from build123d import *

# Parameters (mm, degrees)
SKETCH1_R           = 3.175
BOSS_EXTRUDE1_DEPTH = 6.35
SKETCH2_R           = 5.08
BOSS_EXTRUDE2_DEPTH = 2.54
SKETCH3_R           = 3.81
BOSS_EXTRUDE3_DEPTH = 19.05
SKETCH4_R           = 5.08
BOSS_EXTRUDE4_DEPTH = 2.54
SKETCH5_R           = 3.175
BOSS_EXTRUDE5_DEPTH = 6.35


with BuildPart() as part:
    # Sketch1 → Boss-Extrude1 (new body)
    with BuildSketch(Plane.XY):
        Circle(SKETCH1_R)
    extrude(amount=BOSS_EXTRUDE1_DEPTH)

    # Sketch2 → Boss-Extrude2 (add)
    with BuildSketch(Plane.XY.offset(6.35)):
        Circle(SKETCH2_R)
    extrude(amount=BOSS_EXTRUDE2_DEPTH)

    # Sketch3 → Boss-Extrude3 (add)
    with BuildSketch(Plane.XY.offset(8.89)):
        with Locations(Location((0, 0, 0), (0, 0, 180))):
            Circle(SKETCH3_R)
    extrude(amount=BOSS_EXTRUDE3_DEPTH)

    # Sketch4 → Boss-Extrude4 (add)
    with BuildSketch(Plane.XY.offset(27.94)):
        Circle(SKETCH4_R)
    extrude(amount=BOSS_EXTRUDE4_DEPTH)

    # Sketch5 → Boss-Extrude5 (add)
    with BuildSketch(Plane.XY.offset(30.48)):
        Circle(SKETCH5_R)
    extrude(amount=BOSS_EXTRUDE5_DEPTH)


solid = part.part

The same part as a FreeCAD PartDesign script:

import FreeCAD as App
import Part
import Sketcher
from FreeCAD import Vector
Q = App.Units.Quantity

doc = App.newDocument("Part")
body = doc.addObject("PartDesign::Body", "Body")

sketch1 = body.newObject("Sketcher::SketchObject", "Sketch")
sketch1.AttachmentSupport = (doc.getObject("XY_Plane"), [""])
sketch1.MapMode = "FlatFace"
sketch1.addGeometry(Part.Circle(Vector(0, 0, 0), Vector(0, 0, 1), 3.2), False)
sketch1.addConstraint([
    Sketcher.Constraint("Coincident", 0, 3, -1, 1),
    Sketcher.Constraint("Diameter", 0, Q("0.25 in")),
])
pad1 = body.newObject("PartDesign::Pad", "Pad")
pad1.Profile = sketch1
pad1.Length = Q("0.25 in")

sketch2 = body.newObject("Sketcher::SketchObject", "Sketch001")
sketch2.AttachmentSupport = (doc.getObject("XY_Plane"), [""])
sketch2.MapMode = "FlatFace"
sketch2.AttachmentOffset = App.Placement(Vector(0, 0, 0.25 * 25.4), App.Rotation())
sketch2.addGeometry(Part.Circle(Vector(0, 0, 0), Vector(0, 0, 1), 5), False)
sketch2.addConstraint([
    Sketcher.Constraint("Coincident", 0, 3, -1, 1),
    Sketcher.Constraint("Diameter", 0, Q("0.4 in")),
])
pad2 = body.newObject("PartDesign::Pad", "Pad001")
pad2.Profile = sketch2
pad2.Length = Q("0.1 in")

sketch3 = body.newObject("Sketcher::SketchObject", "Sketch002")
sketch3.AttachmentSupport = (doc.getObject("XY_Plane"), [""])
sketch3.MapMode = "FlatFace"
sketch3.AttachmentOffset = App.Placement(Vector(0, 0, 0.35 * 25.4), App.Rotation())
sketch3.addGeometry(Part.Circle(Vector(0, 0, 0), Vector(0, 0, 1), 3.8), False)
sketch3.addConstraint([
    Sketcher.Constraint("Coincident", 0, 3, -1, 1),
    Sketcher.Constraint("Diameter", 0, Q("0.3 in")),
])
pad3 = body.newObject("PartDesign::Pad", "Pad002")
pad3.Profile = sketch3
pad3.Length = Q("0.75 in")

sketch4 = body.newObject("Sketcher::SketchObject", "Sketch003")
sketch4.AttachmentSupport = (doc.getObject("XY_Plane"), [""])
sketch4.MapMode = "FlatFace"
sketch4.AttachmentOffset = App.Placement(Vector(0, 0, 1.1 * 25.4), App.Rotation())
sketch4.addGeometry(Part.Circle(Vector(0, 0, 0), Vector(0, 0, 1), 5), False)
sketch4.addConstraint([
    Sketcher.Constraint("Coincident", 0, 3, -1, 1),
    Sketcher.Constraint("Diameter", 0, Q("0.4 in")),
])
pad4 = body.newObject("PartDesign::Pad", "Pad003")
pad4.Profile = sketch4
pad4.Length = Q("0.1 in")

sketch5 = body.newObject("Sketcher::SketchObject", "Sketch004")
sketch5.AttachmentSupport = (doc.getObject("XY_Plane"), [""])
sketch5.MapMode = "FlatFace"
sketch5.AttachmentOffset = App.Placement(Vector(0, 0, 1.2 * 25.4), App.Rotation())
sketch5.addGeometry(Part.Circle(Vector(0, 0, 0), Vector(0, 0, 1), 3.2), False)
sketch5.addConstraint([
    Sketcher.Constraint("Coincident", 0, 3, -1, 1),
    Sketcher.Constraint("Diameter", 0, Q("0.25 in")),
])
pad5 = body.newObject("PartDesign::Pad", "Pad004")
pad5.Profile = sketch5
pad5.Length = Q("0.25 in")

doc.recompute()
